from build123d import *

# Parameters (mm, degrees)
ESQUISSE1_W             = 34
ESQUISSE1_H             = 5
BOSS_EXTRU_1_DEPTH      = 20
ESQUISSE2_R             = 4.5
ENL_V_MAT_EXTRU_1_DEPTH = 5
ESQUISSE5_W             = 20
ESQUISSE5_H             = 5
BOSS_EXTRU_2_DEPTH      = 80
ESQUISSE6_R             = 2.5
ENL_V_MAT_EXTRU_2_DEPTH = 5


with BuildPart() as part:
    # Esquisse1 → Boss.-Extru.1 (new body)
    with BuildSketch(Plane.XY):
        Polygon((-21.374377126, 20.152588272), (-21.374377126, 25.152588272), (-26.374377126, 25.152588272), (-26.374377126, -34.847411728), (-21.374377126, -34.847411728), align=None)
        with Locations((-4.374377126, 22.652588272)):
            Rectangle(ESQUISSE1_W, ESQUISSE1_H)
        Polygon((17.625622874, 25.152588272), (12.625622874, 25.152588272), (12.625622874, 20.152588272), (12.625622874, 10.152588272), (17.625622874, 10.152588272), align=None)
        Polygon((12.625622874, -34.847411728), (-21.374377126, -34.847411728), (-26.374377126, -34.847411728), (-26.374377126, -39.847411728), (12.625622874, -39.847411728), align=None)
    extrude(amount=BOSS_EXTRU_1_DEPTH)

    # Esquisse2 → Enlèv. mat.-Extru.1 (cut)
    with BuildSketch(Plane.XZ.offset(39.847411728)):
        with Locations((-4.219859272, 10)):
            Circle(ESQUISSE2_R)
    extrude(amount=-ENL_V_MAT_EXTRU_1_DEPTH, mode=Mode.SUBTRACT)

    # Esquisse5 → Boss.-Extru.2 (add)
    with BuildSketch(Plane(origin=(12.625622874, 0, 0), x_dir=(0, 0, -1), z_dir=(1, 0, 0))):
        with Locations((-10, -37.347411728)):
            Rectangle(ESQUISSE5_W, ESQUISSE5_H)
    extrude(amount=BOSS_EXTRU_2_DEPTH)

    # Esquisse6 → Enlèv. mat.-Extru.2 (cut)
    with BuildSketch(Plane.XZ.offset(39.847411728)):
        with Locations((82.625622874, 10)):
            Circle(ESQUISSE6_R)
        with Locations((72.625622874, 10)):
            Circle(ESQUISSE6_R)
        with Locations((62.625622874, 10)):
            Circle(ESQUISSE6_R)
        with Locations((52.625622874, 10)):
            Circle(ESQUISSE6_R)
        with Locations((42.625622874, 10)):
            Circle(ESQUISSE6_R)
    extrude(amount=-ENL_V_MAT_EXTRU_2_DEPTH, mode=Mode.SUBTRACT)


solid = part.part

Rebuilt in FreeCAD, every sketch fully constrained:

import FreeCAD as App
import Part
import Sketcher
from FreeCAD import Vector
Q = App.Units.Quantity

doc = App.newDocument("Part")
body = doc.addObject("PartDesign::Body", "Body")

sketch1 = body.newObject("Sketcher::SketchObject", "Sketch")
sketch1.AttachmentSupport = (doc.getObject("XY_Plane"), [""])
sketch1.MapMode = "FlatFace"
sketch1.addGeometry([
    Part.LineSegment(Vector(-26, 25, 0), Vector(-26, -40, 0)),
    Part.LineSegment(Vector(-26, -40, 0), Vector(13, -40, 0)),
    Part.LineSegment(Vector(13, -40, 0), Vector(13, -35, 0)),
    Part.LineSegment(Vector(13, -35, 0), Vector(-21, -35, 0)),
    Part.LineSegment(Vector(-21, -35, 0), Vector(-21, 20, 0)),
    Part.LineSegment(Vector(-21, 20, 0), Vector(13, 20, 0)),
    Part.LineSegment(Vector(13, 20, 0), Vector(13, 10, 0)),
    Part.LineSegment(Vector(13, 10, 0), Vector(18, 10, 0)),
    Part.LineSegment(Vector(18, 10, 0), Vector(18, 25, 0)),
    Part.LineSegment(Vector(18, 25, 0), Vector(-26, 25, 0)),
], False)
sketch1.addConstraint([
    Sketcher.Constraint("Coincident", 0, 2, 1, 1),
    Sketcher.Constraint("Coincident", 1, 2, 2, 1),
    Sketcher.Constraint("Coincident", 2, 2, 3, 1),
    Sketcher.Constraint("Coincident", 3, 2, 4, 1),
    Sketcher.Constraint("Coincident", 4, 2, 5, 1),
    Sketcher.Constraint("Coincident", 5, 2, 6, 1),
    Sketcher.Constraint("Coincident", 6, 2, 7, 1),
    Sketcher.Constraint("Coincident", 7, 2, 8, 1),
    Sketcher.Constraint("Coincident", 8, 2, 9, 1),
    Sketcher.Constraint("Coincident", 9, 2, 0, 1),
    Sketcher.Constraint("Vertical", 0),
    Sketcher.Constraint("Horizontal", 1),
    Sketcher.Constraint("Vertical", 2),
    Sketcher.Constraint("Horizontal", 3),
    Sketcher.Constraint("Vertical", 4),
    Sketcher.Constraint("Horizontal", 5),
    Sketcher.Constraint("Vertical", 6),
    Sketcher.Constraint("Horizontal", 7),
    Sketcher.Constraint("Vertical", 8),
    Sketcher.Constraint("Horizontal", 9),
    Sketcher.Constraint("Vertical", 2, 2, 5, 2),
    Sketcher.Constraint("Equal", 7, 2),
    Sketcher.Constraint("DistanceX", 1, 1, 1, 2, Q("39 mm")),
    Sketcher.Constraint("DistanceX", 3, 2, 3, 1, Q("34 mm")),
    Sketcher.Constraint("DistanceX", 7, 1, 7, 2, Q("5 mm")),
    Sketcher.Constraint("DistanceY", 0, 2, 0, 1, Q("65 mm")),
    Sketcher.Constraint("DistanceY", 4, 1, 4, 2, Q("55 mm")),
    Sketcher.Constraint("DistanceY", 6, 2, 6, 1, Q("10 mm")),
    Sketcher.Constraint("DistanceY", 0, 2, -1, 1, Q("39.847412 mm")),
    Sketcher.Constraint("DistanceX", 0, 2, -1, 1, Q("26.374377 mm")),
])
pad1 = body.newObject("PartDesign::Pad", "Pad")
pad1.Profile = sketch1
pad1.Length = 20

sketch2 = body.newObject("Sketcher::SketchObject", "Sketch001")
sketch2.AttachmentSupport = (doc.getObject("XZ_Plane"), [""])
sketch2.MapMode = "FlatFace"
sketch2.AttachmentOffset = App.Placement(Vector(0, 0, 39.847412), App.Rotation())
sketch2.addGeometry(Part.Circle(Vector(-4.2, 10, 0), Vector(0, 0, 1), 4.5), False)
sketch2.addConstraint([
    Sketcher.Constraint("Diameter", 0, Q("9 mm")),
    Sketcher.Constraint("DistanceY", -1, 1, 0, 3, Q("10 mm")),
    Sketcher.Constraint("DistanceX", 0, 3, -1, 1, Q("4.219859 mm")),
])
pocket1 = body.newObject("PartDesign::Pocket", "Pocket")
pocket1.Profile = sketch2
pocket1.Length = 5

sketch3 = body.newObject("Sketcher::SketchObject", "Sketch002")
sketch3.AttachmentSupport = (doc.getObject("YZ_Plane"), [""])
sketch3.MapMode = "FlatFace"
sketch3.AttachmentOffset = App.Placement(Vector(0, 0, 12.625623), App.Rotation())
sketch3.addGeometry([
    Part.LineSegment(Vector(-35, 20, 0), Vector(-40, 20, 0)),
    Part.LineSegment(Vector(-40, 20, 0), Vector(-40, 0, 0)),
    Part.LineSegment(Vector(-40, 0, 0), Vector(-35, 0, 0)),
    Part.LineSegment(Vector(-35, 0, 0), Vector(-35, 20, 0)),
], False)
sketch3.addConstraint([
    Sketcher.Constraint("Coincident", 0, 2, 1, 1),
    Sketcher.Constraint("Coincident", 1, 2, 2, 1),
    Sketcher.Constraint("Coincident", 2, 2, 3, 1),
    Sketcher.Constraint("Coincident", 3, 2, 0, 1),
    Sketcher.Constraint("Horizontal", 0),
    Sketcher.Constraint("Vertical", 1),
    Sketcher.Constraint("Horizontal", 2),
    Sketcher.Constraint("Vertical", 3),
    Sketcher.Constraint("PointOnObject", 1, 2, -1),
    Sketcher.Constraint("DistanceX", 0, 2, 0, 1, Q("5 mm")),
    Sketcher.Constraint("DistanceY", 1, 2, 1, 1, Q("20 mm")),
    Sketcher.Constraint("DistanceX", 0, 2, -1, 1, Q("39.847412 mm")),
])
pad2 = body.newObject("PartDesign::Pad", "Pad001")
pad2.Profile = sketch3
pad2.Length = 80

sketch4 = body.newObject("Sketcher::SketchObject", "Sketch003")
sketch4.AttachmentSupport = (doc.getObject("XZ_Plane"), [""])
sketch4.MapMode = "FlatFace"
sketch4.AttachmentOffset = App.Placement(Vector(0, 0, 39.847412), App.Rotation())
sketch4.addGeometry([
    Part.Circle(Vector(82.6, 10, 0), Vector(0, 0, 1), 2.5),
    Part.Circle(Vector(72.6, 10, 0), Vector(0, 0, 1), 2.5),
    Part.Circle(Vector(62.6, 10, 0), Vector(0, 0, 1), 2.5),
    Part.Circle(Vector(52.6, 10, 0), Vector(0, 0, 1), 2.5),
    Part.Circle(Vector(42.6, 10, 0), Vector(0, 0, 1), 2.5),
], False)
sketch4.addConstraint([
    Sketcher.Constraint("Equal", 0, 1),
    Sketcher.Constraint("Equal", 1, 2),
    Sketcher.Constraint("Equal", 2, 3),
    Sketcher.Constraint("Equal", 3, 4),
    Sketcher.Constraint("Horizontal", 0, 3, 1, 3),
    Sketcher.Constraint("Horizontal", 1, 3, 2, 3),
    Sketcher.Constraint("Horizontal", 2, 3, 3, 3),
    Sketcher.Constraint("Horizontal", 3, 3, 4, 3),
    Sketcher.Constraint("Diameter", 0, Q("5 mm")),
    Sketcher.Constraint("DistanceY", -1, 1, 0, 3, Q("10 mm")),
    Sketcher.Constraint("DistanceX", 1, 3, 0, 3, Q("10 mm")),
    Sketcher.Constraint("DistanceX", 2, 3, 1, 3, Q("10 mm")),
    Sketcher.Constraint("DistanceX", 3, 3, 2, 3, Q("10 mm")),
    Sketcher.Constraint("DistanceX", 4, 3, 3, 3, Q("10 mm")),
    Sketcher.Constraint("DistanceX", -1, 1, 0, 3, Q("82.625623 mm")),
])
pocket2 = body.newObject("PartDesign::Pocket", "Pocket001")
pocket2.Profile = sketch4
pocket2.Length = 5

doc.recompute()
